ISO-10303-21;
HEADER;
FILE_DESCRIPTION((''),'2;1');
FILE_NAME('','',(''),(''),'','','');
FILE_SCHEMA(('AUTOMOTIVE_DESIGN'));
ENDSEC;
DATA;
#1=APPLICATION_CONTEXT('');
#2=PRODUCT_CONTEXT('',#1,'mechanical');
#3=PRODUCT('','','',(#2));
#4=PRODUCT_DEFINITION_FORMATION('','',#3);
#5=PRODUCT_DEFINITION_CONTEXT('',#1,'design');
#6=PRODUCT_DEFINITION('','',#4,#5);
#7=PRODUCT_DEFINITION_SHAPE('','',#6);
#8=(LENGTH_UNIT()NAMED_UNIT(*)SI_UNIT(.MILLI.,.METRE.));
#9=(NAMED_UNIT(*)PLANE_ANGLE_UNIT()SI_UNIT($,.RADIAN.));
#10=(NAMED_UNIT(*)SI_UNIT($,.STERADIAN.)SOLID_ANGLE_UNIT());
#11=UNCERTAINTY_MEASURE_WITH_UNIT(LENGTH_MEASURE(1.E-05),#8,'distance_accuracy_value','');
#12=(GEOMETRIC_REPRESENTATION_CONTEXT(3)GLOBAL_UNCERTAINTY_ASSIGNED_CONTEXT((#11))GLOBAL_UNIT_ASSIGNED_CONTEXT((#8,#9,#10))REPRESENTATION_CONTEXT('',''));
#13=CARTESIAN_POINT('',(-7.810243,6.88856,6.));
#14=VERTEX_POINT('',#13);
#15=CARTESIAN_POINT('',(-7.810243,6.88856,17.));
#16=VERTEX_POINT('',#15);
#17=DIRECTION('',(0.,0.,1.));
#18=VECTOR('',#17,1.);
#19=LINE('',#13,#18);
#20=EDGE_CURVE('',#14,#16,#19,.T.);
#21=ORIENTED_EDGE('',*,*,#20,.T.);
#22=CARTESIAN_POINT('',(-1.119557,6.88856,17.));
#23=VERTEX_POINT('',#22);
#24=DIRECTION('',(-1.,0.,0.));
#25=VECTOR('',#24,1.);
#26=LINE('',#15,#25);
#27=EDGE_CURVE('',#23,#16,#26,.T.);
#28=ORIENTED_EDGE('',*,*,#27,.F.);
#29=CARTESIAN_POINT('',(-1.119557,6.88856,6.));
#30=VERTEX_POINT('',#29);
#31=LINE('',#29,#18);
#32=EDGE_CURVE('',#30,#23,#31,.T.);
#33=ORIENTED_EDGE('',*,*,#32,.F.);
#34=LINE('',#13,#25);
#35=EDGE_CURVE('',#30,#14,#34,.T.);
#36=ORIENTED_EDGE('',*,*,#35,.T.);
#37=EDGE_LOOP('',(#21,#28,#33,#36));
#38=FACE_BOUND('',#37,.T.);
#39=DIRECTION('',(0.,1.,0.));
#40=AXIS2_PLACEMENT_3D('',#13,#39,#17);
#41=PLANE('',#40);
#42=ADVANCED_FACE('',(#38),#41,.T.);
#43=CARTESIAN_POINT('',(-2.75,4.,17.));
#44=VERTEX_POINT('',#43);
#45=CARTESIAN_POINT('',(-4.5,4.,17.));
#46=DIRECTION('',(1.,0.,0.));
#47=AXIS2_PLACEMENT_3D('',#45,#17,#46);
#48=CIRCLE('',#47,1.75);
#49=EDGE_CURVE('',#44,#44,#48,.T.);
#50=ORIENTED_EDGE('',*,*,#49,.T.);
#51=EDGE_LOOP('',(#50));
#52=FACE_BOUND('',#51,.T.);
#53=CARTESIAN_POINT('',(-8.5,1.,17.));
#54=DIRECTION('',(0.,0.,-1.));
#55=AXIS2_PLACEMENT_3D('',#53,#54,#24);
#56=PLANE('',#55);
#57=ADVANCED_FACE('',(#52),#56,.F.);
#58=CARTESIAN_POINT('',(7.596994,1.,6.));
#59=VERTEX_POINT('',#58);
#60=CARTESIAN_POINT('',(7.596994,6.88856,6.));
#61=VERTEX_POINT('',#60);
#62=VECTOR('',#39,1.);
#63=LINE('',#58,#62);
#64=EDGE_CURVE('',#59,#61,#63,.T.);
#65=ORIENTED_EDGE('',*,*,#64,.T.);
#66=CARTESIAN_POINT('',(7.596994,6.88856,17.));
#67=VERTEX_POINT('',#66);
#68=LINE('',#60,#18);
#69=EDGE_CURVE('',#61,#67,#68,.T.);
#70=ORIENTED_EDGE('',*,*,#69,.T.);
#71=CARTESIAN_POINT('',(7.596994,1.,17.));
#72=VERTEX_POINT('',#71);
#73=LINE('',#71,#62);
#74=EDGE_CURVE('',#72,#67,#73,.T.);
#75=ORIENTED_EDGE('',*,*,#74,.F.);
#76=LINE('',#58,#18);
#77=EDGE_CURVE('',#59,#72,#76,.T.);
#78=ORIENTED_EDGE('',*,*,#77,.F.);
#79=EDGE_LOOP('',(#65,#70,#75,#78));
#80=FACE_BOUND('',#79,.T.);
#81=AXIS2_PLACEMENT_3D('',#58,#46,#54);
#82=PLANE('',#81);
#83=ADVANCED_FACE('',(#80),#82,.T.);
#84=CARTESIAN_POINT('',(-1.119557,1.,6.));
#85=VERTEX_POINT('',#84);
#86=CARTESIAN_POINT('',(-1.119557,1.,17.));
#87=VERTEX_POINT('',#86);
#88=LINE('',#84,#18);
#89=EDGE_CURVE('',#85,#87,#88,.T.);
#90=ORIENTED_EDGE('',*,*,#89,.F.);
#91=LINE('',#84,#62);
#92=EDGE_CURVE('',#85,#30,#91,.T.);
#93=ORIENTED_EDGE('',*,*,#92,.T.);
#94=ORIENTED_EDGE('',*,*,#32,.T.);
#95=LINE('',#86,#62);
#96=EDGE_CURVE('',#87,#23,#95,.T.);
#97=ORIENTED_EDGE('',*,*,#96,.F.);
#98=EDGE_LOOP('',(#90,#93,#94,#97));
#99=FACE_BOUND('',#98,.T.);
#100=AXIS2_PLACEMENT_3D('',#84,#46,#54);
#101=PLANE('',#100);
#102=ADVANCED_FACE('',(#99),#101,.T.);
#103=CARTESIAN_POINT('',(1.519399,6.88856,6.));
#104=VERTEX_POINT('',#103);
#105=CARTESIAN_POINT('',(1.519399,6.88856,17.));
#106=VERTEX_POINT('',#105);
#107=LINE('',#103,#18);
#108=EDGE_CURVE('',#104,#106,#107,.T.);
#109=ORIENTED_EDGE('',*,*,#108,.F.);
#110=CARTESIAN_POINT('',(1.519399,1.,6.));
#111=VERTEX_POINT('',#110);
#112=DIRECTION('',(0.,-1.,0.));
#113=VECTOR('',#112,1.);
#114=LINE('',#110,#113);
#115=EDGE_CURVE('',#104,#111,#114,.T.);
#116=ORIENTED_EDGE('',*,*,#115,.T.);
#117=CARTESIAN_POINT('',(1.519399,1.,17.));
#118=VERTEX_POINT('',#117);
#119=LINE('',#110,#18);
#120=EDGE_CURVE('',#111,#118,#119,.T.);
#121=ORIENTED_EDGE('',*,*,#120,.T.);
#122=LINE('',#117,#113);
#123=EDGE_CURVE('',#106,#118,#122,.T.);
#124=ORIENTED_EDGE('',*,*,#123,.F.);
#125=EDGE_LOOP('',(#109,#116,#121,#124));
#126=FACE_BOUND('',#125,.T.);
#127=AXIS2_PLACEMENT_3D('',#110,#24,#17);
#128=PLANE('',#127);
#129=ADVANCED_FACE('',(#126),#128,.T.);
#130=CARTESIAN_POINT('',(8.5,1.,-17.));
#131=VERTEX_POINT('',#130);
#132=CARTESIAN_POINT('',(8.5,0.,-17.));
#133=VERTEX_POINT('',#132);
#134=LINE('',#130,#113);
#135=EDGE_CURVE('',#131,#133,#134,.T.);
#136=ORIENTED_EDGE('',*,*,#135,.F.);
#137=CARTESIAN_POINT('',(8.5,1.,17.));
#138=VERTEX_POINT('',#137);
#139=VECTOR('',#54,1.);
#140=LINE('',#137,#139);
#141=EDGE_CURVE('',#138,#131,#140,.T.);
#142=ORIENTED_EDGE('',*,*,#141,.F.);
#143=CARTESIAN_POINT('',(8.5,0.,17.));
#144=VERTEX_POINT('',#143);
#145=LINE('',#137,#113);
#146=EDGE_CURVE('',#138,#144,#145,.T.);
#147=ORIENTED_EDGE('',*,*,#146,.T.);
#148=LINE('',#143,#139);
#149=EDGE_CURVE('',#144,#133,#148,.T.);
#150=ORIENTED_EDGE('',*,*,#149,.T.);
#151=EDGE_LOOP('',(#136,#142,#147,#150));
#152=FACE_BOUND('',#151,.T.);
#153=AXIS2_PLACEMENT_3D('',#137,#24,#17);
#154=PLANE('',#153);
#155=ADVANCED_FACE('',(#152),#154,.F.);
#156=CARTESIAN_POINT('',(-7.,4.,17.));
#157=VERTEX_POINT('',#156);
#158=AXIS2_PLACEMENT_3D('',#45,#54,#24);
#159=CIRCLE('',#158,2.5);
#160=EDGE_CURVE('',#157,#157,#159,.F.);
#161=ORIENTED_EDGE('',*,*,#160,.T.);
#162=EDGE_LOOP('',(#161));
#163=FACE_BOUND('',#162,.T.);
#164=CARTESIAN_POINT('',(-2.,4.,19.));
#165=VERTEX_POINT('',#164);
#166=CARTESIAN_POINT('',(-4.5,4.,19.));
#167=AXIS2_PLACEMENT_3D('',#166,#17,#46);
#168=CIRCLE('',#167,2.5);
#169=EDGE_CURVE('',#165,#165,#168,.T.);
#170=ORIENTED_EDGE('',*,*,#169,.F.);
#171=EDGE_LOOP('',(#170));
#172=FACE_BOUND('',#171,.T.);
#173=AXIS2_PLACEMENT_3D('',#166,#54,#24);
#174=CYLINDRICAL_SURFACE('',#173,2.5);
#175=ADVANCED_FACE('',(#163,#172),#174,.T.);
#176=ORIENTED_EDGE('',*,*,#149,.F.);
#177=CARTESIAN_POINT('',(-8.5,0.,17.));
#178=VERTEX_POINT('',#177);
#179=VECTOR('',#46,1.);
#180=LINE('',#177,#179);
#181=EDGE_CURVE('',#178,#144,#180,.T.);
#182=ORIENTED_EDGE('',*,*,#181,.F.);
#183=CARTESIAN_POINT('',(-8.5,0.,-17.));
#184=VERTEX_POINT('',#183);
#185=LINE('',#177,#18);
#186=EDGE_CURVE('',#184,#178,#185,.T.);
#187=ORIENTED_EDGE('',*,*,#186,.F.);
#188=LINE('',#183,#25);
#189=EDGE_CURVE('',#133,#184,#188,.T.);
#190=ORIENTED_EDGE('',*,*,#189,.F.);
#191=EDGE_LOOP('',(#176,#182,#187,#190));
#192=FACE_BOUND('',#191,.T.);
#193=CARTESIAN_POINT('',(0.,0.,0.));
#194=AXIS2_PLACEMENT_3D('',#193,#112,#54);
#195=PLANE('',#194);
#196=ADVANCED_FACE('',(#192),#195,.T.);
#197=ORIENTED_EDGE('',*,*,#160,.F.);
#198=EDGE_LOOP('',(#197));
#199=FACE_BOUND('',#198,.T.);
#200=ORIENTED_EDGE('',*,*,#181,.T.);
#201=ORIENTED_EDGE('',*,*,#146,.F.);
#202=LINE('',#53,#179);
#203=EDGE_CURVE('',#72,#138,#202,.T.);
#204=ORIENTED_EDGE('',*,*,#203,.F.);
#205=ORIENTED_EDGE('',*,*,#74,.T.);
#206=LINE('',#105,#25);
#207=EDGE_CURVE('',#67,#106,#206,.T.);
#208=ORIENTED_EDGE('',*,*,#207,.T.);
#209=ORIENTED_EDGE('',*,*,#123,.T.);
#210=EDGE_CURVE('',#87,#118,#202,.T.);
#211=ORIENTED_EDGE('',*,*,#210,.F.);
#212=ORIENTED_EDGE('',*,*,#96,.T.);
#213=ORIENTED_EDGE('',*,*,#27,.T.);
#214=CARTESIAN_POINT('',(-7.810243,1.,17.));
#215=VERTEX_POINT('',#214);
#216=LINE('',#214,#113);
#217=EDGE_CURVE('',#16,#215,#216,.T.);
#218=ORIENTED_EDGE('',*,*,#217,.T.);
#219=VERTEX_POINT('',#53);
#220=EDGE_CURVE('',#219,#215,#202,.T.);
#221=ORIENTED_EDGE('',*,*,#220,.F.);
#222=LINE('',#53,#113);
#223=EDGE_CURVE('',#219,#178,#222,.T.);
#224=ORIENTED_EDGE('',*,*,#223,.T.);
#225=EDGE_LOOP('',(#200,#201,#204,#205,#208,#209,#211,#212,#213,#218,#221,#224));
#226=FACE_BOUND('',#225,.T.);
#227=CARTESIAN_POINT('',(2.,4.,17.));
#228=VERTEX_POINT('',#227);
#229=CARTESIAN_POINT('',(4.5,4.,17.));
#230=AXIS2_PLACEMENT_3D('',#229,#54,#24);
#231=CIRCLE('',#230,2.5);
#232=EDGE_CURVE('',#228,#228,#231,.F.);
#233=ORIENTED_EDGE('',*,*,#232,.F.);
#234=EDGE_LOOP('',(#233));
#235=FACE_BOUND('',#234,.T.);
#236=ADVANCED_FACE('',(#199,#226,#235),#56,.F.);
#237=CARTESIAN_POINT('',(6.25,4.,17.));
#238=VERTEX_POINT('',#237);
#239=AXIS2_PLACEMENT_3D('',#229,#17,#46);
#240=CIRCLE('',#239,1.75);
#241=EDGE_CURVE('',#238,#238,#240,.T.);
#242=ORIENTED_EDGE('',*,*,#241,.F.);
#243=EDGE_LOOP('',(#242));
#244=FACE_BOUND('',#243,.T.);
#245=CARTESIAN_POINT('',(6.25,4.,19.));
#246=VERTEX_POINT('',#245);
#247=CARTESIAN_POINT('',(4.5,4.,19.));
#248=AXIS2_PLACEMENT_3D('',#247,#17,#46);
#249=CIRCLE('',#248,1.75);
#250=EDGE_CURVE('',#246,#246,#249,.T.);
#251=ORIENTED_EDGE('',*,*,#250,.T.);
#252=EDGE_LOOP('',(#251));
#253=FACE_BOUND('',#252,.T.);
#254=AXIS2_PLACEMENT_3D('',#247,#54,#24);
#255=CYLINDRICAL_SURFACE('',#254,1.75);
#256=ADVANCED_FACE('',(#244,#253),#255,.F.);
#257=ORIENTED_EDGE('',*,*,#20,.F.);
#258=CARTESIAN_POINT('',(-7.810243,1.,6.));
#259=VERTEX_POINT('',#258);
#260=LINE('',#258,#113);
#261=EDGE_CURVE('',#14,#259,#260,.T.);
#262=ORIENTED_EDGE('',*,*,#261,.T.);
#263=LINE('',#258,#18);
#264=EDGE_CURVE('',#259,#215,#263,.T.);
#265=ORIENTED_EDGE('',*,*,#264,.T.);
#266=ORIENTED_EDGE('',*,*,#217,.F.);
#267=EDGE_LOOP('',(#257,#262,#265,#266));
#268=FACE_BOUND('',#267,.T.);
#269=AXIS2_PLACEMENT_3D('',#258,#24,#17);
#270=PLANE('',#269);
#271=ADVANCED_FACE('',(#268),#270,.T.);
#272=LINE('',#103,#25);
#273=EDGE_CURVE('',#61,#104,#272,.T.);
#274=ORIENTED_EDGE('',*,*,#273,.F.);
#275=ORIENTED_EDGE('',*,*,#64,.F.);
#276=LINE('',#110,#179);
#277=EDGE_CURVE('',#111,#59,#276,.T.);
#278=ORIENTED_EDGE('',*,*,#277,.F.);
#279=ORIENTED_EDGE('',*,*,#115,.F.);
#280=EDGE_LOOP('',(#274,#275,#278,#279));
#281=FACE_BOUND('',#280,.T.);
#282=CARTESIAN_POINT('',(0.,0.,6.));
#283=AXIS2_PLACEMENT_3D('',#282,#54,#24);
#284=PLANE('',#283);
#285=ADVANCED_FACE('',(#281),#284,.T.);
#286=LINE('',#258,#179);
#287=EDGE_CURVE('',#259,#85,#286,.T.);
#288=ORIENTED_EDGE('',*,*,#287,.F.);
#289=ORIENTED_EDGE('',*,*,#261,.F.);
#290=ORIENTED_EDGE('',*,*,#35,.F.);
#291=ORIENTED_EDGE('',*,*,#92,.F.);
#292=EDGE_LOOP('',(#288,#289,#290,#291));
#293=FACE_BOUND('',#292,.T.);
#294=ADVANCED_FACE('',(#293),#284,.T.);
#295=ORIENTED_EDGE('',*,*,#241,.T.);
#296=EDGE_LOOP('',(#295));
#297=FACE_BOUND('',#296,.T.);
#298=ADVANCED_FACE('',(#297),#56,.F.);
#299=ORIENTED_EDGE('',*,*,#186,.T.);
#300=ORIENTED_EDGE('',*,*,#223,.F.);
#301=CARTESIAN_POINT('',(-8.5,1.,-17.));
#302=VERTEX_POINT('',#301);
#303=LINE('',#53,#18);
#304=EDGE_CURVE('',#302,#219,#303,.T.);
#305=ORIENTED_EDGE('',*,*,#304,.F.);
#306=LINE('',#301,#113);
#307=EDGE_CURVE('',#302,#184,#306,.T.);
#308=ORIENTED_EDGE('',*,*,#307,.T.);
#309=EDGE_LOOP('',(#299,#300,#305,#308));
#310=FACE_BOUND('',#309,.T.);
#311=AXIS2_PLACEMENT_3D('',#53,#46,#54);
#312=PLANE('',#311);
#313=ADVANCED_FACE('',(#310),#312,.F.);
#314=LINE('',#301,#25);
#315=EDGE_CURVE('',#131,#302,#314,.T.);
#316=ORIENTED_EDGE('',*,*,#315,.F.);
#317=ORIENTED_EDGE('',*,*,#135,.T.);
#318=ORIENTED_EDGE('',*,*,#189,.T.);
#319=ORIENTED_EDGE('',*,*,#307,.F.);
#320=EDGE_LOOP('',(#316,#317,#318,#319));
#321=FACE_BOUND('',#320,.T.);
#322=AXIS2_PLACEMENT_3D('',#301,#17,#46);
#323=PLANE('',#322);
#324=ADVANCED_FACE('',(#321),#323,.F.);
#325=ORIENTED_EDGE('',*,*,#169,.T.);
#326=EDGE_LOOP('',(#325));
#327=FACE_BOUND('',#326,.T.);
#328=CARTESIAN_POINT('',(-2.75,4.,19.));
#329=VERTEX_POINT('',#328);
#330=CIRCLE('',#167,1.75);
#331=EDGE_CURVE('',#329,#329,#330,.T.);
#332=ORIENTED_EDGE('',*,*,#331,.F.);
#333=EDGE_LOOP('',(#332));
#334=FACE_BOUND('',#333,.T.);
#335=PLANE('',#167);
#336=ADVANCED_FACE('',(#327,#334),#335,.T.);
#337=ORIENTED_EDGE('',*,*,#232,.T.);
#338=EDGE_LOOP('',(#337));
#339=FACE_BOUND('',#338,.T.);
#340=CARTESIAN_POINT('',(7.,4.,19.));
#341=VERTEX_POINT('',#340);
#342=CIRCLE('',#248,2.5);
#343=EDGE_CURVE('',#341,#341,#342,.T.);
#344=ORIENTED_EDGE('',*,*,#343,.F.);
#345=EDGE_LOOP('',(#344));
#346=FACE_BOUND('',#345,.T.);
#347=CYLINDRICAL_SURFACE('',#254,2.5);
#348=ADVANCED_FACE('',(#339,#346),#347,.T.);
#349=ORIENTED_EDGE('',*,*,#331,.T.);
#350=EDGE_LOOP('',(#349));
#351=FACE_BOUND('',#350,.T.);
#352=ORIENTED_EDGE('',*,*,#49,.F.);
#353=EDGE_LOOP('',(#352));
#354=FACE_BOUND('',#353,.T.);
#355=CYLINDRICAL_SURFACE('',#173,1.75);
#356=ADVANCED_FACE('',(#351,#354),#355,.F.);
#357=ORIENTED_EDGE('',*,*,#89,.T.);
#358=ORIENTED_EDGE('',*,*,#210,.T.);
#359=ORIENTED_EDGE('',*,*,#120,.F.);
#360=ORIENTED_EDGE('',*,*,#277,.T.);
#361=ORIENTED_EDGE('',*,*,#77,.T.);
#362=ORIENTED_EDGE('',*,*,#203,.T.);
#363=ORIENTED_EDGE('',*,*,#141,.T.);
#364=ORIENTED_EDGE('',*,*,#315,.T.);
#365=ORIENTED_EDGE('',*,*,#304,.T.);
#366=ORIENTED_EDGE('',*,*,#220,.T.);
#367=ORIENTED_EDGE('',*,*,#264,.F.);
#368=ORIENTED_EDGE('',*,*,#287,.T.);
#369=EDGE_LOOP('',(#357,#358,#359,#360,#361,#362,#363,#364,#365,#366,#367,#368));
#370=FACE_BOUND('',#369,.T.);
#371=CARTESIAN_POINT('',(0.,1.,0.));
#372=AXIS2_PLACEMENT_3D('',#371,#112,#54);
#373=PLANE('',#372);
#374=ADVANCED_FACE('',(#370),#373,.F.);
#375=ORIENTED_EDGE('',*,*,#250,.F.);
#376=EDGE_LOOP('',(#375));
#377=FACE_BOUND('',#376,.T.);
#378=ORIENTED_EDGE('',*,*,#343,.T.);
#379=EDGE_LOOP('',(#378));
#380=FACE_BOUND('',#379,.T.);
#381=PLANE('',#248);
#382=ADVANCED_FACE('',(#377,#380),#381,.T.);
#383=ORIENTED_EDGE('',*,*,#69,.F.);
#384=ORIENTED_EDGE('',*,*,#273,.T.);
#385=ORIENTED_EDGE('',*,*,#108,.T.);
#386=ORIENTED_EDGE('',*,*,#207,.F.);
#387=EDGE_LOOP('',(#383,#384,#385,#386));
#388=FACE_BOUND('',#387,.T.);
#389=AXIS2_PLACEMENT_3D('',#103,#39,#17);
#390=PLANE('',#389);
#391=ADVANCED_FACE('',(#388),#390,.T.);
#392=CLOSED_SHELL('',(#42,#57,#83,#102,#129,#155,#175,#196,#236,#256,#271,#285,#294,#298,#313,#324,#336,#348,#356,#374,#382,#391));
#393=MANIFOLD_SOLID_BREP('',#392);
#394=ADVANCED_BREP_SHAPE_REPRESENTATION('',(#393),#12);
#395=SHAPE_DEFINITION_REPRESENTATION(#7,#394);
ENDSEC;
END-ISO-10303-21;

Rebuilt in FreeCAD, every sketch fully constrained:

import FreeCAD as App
import Part
import Sketcher
from FreeCAD import Vector


def add_polygon(sketch, points):
    """Adds a closed chain of lines whose ends are joined by coincident constraints."""
    first, n = sketch.GeometryCount, len(points)
    for a, b in zip(points, points[1:] + points[:1]):
        sketch.addGeometry(Part.LineSegment(App.Vector(*a, 0), App.Vector(*b, 0)), False)
    for i in range(n):
        sketch.addConstraint(Sketcher.Constraint("Coincident", first + i, 2, first + (i + 1) % n, 1))

doc = App.newDocument("Part")
body = doc.addObject("PartDesign::Body", "Body")

# Sketch on XZ plane
sketch1 = doc.addObject("Sketcher::SketchObject", "Sketch")
body.addObject(sketch1)
sketch1.AttachmentSupport = (doc.XZ_Plane, [""])
sketch1.MapMode = "FlatFace"
add_polygon(sketch1, [(-8, -17), (-8, 17), (8, 17), (8, -17)])  # lines 0-3
sketch1.addConstraint([
    Sketcher.Constraint("Vertical", 0),
    Sketcher.Constraint("Horizontal", 1),
    Sketcher.Constraint("Vertical", 2),
    Sketcher.Constraint("Horizontal", 3),
    Sketcher.Constraint("Symmetric", 0, 2, 2, 2, -1, 1),
    Sketcher.Constraint("DistanceX", 1, 1, 1, 2, 17.0),
    Sketcher.Constraint("DistanceY", 0, 1, 0, 2, 34.0),
])
pad1 = doc.addObject("PartDesign::Pad", "Pad")
body.addObject(pad1)
pad1.Profile = sketch1
pad1.Length = 1
pad1.Reversed = True
body2 = doc.addObject("PartDesign::Body", "Body001")

# Sketch on XY plane
sketch2 = doc.addObject("Sketcher::SketchObject", "Sketch001")
body2.addObject(sketch2)
sketch2.AttachmentSupport = (doc.getObject("XY_Plane001"), [""])
sketch2.MapMode = "FlatFace"
sketch2.AttachmentOffset = App.Placement(Vector(0, 0, 17), App.Rotation())
sketch2.addGeometry([
    Part.Circle(Vector(-4.5, 4, 0), Vector(0, 0, 1), 2.5),
    Part.Circle(Vector(-4.5, 4, 0), Vector(0, 0, 1), 1.8),
], False)
sketch2.addConstraint([
    Sketcher.Constraint("Coincident", 1, 3, 0, 3),
    Sketcher.Constraint("Diameter", 0, 5.0),
    Sketcher.Constraint("Diameter", 1, 3.5),
    Sketcher.Constraint("DistanceY", -1, 1, 0, 3, 4.0),
    Sketcher.Constraint("DistanceX", 0, 3, -1, 1, 4.5),
])
pad2 = doc.addObject("PartDesign::Pad", "Pad001")
body2.addObject(pad2)
pad2.Profile = sketch2
pad2.Length = 2
body3 = doc.addObject("PartDesign::Body", "Body002")

# Sketch on XY plane
sketch3 = doc.addObject("Sketcher::SketchObject", "Sketch002")
body3.addObject(sketch3)
sketch3.AttachmentSupport = (doc.getObject("XY_Plane002"), [""])
sketch3.MapMode = "FlatFace"
sketch3.AttachmentOffset = App.Placement(Vector(0, 0, 17), App.Rotation())
sketch3.addGeometry([
    Part.Circle(Vector(4.5, 4, 0), Vector(0, 0, 1), 2.5),
    Part.Circle(Vector(4.5, 4, 0), Vector(0, 0, 1), 1.8),
], False)
sketch3.addConstraint([
    Sketcher.Constraint("Coincident", 1, 3, 0, 3),
    Sketcher.Constraint("Diameter", 0, 5.0),
    Sketcher.Constraint("Diameter", 1, 3.5),
    Sketcher.Constraint("DistanceY", -1, 1, 0, 3, 4.0),
    Sketcher.Constraint("DistanceX", -1, 1, 0, 3, 4.5),
])
pad3 = doc.addObject("PartDesign::Pad", "Pad002")
body3.addObject(pad3)
pad3.Profile = sketch3
pad3.Length = 2
body.AllowCompound = True
doc.recompute()

boolean = doc.addObject("PartDesign::Boolean", "Boolean")
body.addObject(boolean)
boolean.Type = "Fuse"
boolean.addObjects([body2])
doc.recompute()

boolean2 = doc.addObject("PartDesign::Boolean", "Boolean001")
body.addObject(boolean2)
boolean2.Type = "Fuse"
boolean2.addObjects([body3])

# Sketch on XY plane
sketch4 = doc.addObject("Sketcher::SketchObject", "Sketch003")
body.addObject(sketch4)
sketch4.AttachmentSupport = (doc.XY_Plane, [""])
sketch4.MapMode = "FlatFace"
sketch4.AttachmentOffset = App.Placement(Vector(0, 0, 17), App.Rotation())
add_polygon(sketch4, [(-8, 7), (-8, 1), (-1, 1), (-1, 7)])  # lines 0-3
add_polygon(sketch4, [(2, 7), (2, 1), (8, 1), (8, 7)])  # lines 4-7
sketch4.addConstraint([
    Sketcher.Constraint("Vertical", 0),
    Sketcher.Constraint("Horizontal", 1),
    Sketcher.Constraint("Vertical", 2),
    Sketcher.Constraint("Horizontal", 3),
    Sketcher.Constraint("Vertical", 4),
    Sketcher.Constraint("Horizontal", 5),
    Sketcher.Constraint("Vertical", 6),
    Sketcher.Constraint("Horizontal", 7),
    Sketcher.Constraint("Horizontal", 1, 2, 4, 2),
    Sketcher.Constraint("Horizontal", 3, 2, 6, 2),
    Sketcher.Constraint("DistanceY", -1, 1, 0, 2, 1.0),
    Sketcher.Constraint("DistanceY", 0, 2, 0, 1, 5.88856),
    Sketcher.Constraint("DistanceX", -1, 1, 4, 2, 1.519399),
    Sketcher.Constraint("DistanceX", 1, 1, 1, 2, 6.690686),
    Sketcher.Constraint("DistanceX", 5, 1, 5, 2, 6.077595),
    Sketcher.Constraint("DistanceX", 0, 2, 4, 2, 9.329642),
])
pad4 = doc.addObject("PartDesign::Pad", "Pad003")
body.addObject(pad4)
pad4.Profile = sketch4
pad4.Length = 11
pad4.Reversed = True

doc.recompute()
